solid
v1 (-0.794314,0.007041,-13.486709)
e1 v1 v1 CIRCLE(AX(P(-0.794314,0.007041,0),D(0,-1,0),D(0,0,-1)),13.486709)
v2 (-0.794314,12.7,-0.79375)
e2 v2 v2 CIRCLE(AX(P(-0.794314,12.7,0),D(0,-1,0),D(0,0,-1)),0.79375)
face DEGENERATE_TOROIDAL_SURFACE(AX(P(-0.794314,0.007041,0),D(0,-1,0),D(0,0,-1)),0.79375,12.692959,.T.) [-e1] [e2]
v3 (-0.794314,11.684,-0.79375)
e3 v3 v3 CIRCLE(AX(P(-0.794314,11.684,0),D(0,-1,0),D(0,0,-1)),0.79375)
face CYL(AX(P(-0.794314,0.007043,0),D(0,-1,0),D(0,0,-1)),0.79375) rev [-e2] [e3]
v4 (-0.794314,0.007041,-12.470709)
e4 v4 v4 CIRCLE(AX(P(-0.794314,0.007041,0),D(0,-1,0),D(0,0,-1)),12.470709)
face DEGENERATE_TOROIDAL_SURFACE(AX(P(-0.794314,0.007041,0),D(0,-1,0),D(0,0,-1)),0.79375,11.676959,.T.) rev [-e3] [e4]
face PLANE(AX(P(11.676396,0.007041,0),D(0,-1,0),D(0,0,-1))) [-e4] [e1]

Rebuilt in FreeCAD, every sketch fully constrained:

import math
import FreeCAD as App
import Part
import Sketcher
Q = App.Units.Quantity

doc = App.newDocument("Part")
body = doc.addObject("PartDesign::Body", "Body")

# Sketch on XY plane
sketch1 = body.newObject("Sketcher::SketchObject", "Sketch")
sketch1.AttachmentSupport = (doc.getObject("XY_Plane"), [""])
sketch1.MapMode = "FlatFace"
sketch1.addGeometry([
    Part.LineSegment(App.Vector(0, 12.7, 0), App.Vector(0, 11.7, 0)),
    Part.ArcOfCircle(Part.Circle(App.Vector(0, 0, 0), App.Vector(0, 0, 1), 11.7), math.radians(0), math.radians(90)),
    Part.LineSegment(App.Vector(11.7, 0, 0), App.Vector(12.7, 0, 0)),
    Part.ArcOfCircle(Part.Circle(App.Vector(0, 0, 0), App.Vector(0, 0, 1), 12.7), math.radians(0), math.radians(90)),
], False)
sketch1.addGeometry(Part.LineSegment(App.Vector(-0.8, 0, 0), App.Vector(-0.8, 12.7, 0)), True)  # axis
sketch1.addConstraint([
    Sketcher.Constraint("Coincident", 0, 2, 1, 2),
    Sketcher.Constraint("Coincident", 1, 1, 2, 1),
    Sketcher.Constraint("Coincident", 2, 2, 3, 1),
    Sketcher.Constraint("Coincident", 3, 2, 0, 1),
    Sketcher.Constraint("Vertical", 0),
    Sketcher.Constraint("Horizontal", 2),
    Sketcher.Constraint("Vertical", 4),
    Sketcher.Constraint("Coincident", 3, 3, 1, 3),
    Sketcher.Constraint("Horizontal", 3, 3, 1, 1),
    Sketcher.Constraint("Horizontal", 2, 2, 4, 1),
    Sketcher.Constraint("Horizontal", 3, 2, 4, 2),
    Sketcher.Constraint("Vertical", 3, 3, 0, 2),
    Sketcher.Constraint("DistanceX", 2, 1, 2, 2, Q("0.04 in")),
    Sketcher.Constraint("DistanceY", -1, 1, 3, 2, Q("0.5 in")),
    Sketcher.Constraint("Radius", 1, 11.676959),
    Sketcher.Constraint("DistanceX", 4, 1, 3, 3, Q("0.03125 in")),
    Sketcher.Constraint("DistanceX", 1, 3, -1, 1, 0.000564),
])
revolution = body.newObject("PartDesign::Revolution", "Revolution")
revolution.Profile = sketch1
revolution.ReferenceAxis = (sketch1, ["Axis0"])
revolution.Angle = 360

doc.recompute()
